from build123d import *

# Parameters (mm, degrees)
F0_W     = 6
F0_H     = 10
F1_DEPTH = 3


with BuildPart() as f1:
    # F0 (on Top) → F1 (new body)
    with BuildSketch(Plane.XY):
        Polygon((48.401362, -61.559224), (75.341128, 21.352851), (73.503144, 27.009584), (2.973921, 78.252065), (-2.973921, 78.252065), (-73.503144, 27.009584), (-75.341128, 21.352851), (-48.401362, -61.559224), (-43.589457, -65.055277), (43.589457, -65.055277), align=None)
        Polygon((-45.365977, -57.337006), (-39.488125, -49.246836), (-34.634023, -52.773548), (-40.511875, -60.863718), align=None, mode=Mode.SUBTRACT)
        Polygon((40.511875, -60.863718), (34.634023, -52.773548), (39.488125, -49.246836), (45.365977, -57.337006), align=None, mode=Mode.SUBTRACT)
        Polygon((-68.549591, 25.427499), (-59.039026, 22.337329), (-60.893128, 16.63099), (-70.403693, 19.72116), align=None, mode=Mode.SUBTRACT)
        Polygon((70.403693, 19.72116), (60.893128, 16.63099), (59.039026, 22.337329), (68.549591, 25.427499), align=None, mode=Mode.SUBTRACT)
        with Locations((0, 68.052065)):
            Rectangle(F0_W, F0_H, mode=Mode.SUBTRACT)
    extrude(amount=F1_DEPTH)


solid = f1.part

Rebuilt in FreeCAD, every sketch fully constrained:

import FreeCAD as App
import Part
import Sketcher
Q = App.Units.Quantity

doc = App.newDocument("Part")
body = doc.addObject("PartDesign::Body", "Body")

sketch1 = body.newObject("Sketcher::SketchObject", "Sketch")
sketch1.AttachmentSupport = (doc.getObject("XY_Plane"), [""])
sketch1.MapMode = "FlatFace"
sketch1.addGeometry(Part.LineSegment(App.Vector(48, -62, 0), App.Vector(75, 21, 0)), False)
sketch1.addGeometry(Part.LineSegment(App.Vector(75, 21, 0), App.Vector(74, 27, 0)), False)
sketch1.addGeometry(Part.LineSegment(App.Vector(74, 27, 0), App.Vector(3, 78, 0)), False)
sketch1.addGeometry(Part.LineSegment(App.Vector(3, 78, 0), App.Vector(-3, 78, 0)), False)
sketch1.addGeometry(Part.LineSegment(App.Vector(-3, 78, 0), App.Vector(-74, 27, 0)), False)
sketch1.addGeometry(Part.LineSegment(App.Vector(-74, 27, 0), App.Vector(-75, 21, 0)), False)
sketch1.addGeometry(Part.LineSegment(App.Vector(-75, 21, 0), App.Vector(-48, -62, 0)), False)
sketch1.addGeometry(Part.LineSegment(App.Vector(-48, -62, 0), App.Vector(-44, -65, 0)), False)
sketch1.addGeometry(Part.LineSegment(App.Vector(-44, -65, 0), App.Vector(44, -65, 0)), False)
sketch1.addGeometry(Part.LineSegment(App.Vector(44, -65, 0), App.Vector(48, -62, 0)), False)
sketch1.addGeometry(Part.LineSegment(App.Vector(-41, -61, 0), App.Vector(-45, -57, 0)), False)
sketch1.addGeometry(Part.LineSegment(App.Vector(-45, -57, 0), App.Vector(-39, -49, 0)), False)
sketch1.addGeometry(Part.LineSegment(App.Vector(-39, -49, 0), App.Vector(-35, -53, 0)), False)
sketch1.addGeometry(Part.LineSegment(App.Vector(-35, -53, 0), App.Vector(-41, -61, 0)), False)
sketch1.addGeometry(Part.LineSegment(App.Vector(45, -57, 0), App.Vector(41, -61, 0)), False)
sketch1.addGeometry(Part.LineSegment(App.Vector(41, -61, 0), App.Vector(35, -53, 0)), False)
sketch1.addGeometry(Part.LineSegment(App.Vector(35, -53, 0), App.Vector(39, -49, 0)), False)
sketch1.addGeometry(Part.LineSegment(App.Vector(39, -49, 0), App.Vector(45, -57, 0)), False)
sketch1.addGeometry(Part.LineSegment(App.Vector(-70, 20, 0), App.Vector(-69, 25, 0)), False)
sketch1.addGeometry(Part.LineSegment(App.Vector(-69, 25, 0), App.Vector(-59, 22, 0)), False)
sketch1.addGeometry(Part.LineSegment(App.Vector(-59, 22, 0), App.Vector(-61, 17, 0)), False)
sketch1.addGeometry(Part.LineSegment(App.Vector(-61, 17, 0), App.Vector(-70, 20, 0)), False)
sketch1.addGeometry(Part.LineSegment(App.Vector(3, 63, 0), App.Vector(-3, 63, 0)), False)
sketch1.addGeometry(Part.LineSegment(App.Vector(-3, 63, 0), App.Vector(-3, 73, 0)), False)
sketch1.addGeometry(Part.LineSegment(App.Vector(-3, 73, 0), App.Vector(3, 73, 0)), False)
sketch1.addGeometry(Part.LineSegment(App.Vector(3, 73, 0), App.Vector(3, 63, 0)), False)
sketch1.addGeometry(Part.LineSegment(App.Vector(69, 25, 0), App.Vector(70, 20, 0)), False)
sketch1.addGeometry(Part.LineSegment(App.Vector(70, 20, 0), App.Vector(61, 17, 0)), False)
sketch1.addGeometry(Part.LineSegment(App.Vector(61, 17, 0), App.Vector(59, 22, 0)), False)
sketch1.addGeometry(Part.LineSegment(App.Vector(59, 22, 0), App.Vector(69, 25, 0)), False)
sketch1.addConstraint(Sketcher.Constraint("Coincident", 0, 2, 1, 1))
sketch1.addConstraint(Sketcher.Constraint("Coincident", 1, 2, 2, 1))
sketch1.addConstraint(Sketcher.Constraint("Coincident", 2, 2, 3, 1))
sketch1.addConstraint(Sketcher.Constraint("Coincident", 3, 2, 4, 1))
sketch1.addConstraint(Sketcher.Constraint("Coincident", 4, 2, 5, 1))
sketch1.addConstraint(Sketcher.Constraint("Coincident", 5, 2, 6, 1))
sketch1.addConstraint(Sketcher.Constraint("Coincident", 6, 2, 7, 1))
sketch1.addConstraint(Sketcher.Constraint("Coincident", 7, 2, 8, 1))
sketch1.addConstraint(Sketcher.Constraint("Coincident", 8, 2, 9, 1))
sketch1.addConstraint(Sketcher.Constraint("Coincident", 9, 2, 0, 1))
sketch1.addConstraint(Sketcher.Constraint("Coincident", 10, 2, 11, 1))
sketch1.addConstraint(Sketcher.Constraint("Coincident", 11, 2, 12, 1))
sketch1.addConstraint(Sketcher.Constraint("Coincident", 12, 2, 13, 1))
sketch1.addConstraint(Sketcher.Constraint("Coincident", 13, 2, 10, 1))
sketch1.addConstraint(Sketcher.Constraint("Coincident", 14, 2, 15, 1))
sketch1.addConstraint(Sketcher.Constraint("Coincident", 15, 2, 16, 1))
sketch1.addConstraint(Sketcher.Constraint("Coincident", 16, 2, 17, 1))
sketch1.addConstraint(Sketcher.Constraint("Coincident", 17, 2, 14, 1))
sketch1.addConstraint(Sketcher.Constraint("Coincident", 18, 2, 19, 1))
sketch1.addConstraint(Sketcher.Constraint("Coincident", 19, 2, 20, 1))
sketch1.addConstraint(Sketcher.Constraint("Coincident", 20, 2, 21, 1))
sketch1.addConstraint(Sketcher.Constraint("Coincident", 21, 2, 18, 1))
sketch1.addConstraint(Sketcher.Constraint("Coincident", 22, 2, 23, 1))
sketch1.addConstraint(Sketcher.Constraint("Coincident", 23, 2, 24, 1))
sketch1.addConstraint(Sketcher.Constraint("Coincident", 24, 2, 25, 1))
sketch1.addConstraint(Sketcher.Constraint("Coincident", 25, 2, 22, 1))
sketch1.addConstraint(Sketcher.Constraint("Coincident", 26, 2, 27, 1))
sketch1.addConstraint(Sketcher.Constraint("Coincident", 27, 2, 28, 1))
sketch1.addConstraint(Sketcher.Constraint("Coincident", 28, 2, 29, 1))
sketch1.addConstraint(Sketcher.Constraint("Coincident", 29, 2, 26, 1))
sketch1.addConstraint(Sketcher.Constraint("Horizontal", 3))
sketch1.addConstraint(Sketcher.Constraint("Horizontal", 8))
sketch1.addConstraint(Sketcher.Constraint("Horizontal", 22))
sketch1.addConstraint(Sketcher.Constraint("Vertical", 23))
sketch1.addConstraint(Sketcher.Constraint("Horizontal", 24))
sketch1.addConstraint(Sketcher.Constraint("Vertical", 25))
sketch1.addConstraint(Sketcher.Constraint("Symmetric", 1, 2, 4, 2, -2))
sketch1.addConstraint(Sketcher.Constraint("Symmetric", 0, 2, 5, 2, -2))
sketch1.addConstraint(Sketcher.Constraint("Symmetric", 6, 2, 9, 2, -2))
sketch1.addConstraint(Sketcher.Constraint("Symmetric", 13, 2, 14, 2, -2))
sketch1.addConstraint(Sketcher.Constraint("Symmetric", 12, 2, 15, 2, -2))
sketch1.addConstraint(Sketcher.Constraint("Symmetric", 11, 2, 16, 2, -2))
sketch1.addConstraint(Sketcher.Constraint("Symmetric", 10, 2, 17, 2, -2))
sketch1.addConstraint(Sketcher.Constraint("Symmetric", 21, 2, 26, 2, -2))
sketch1.addConstraint(Sketcher.Constraint("Symmetric", 20, 2, 27, 2, -2))
sketch1.addConstraint(Sketcher.Constraint("Symmetric", 19, 2, 28, 2, -2))
sketch1.addConstraint(Sketcher.Constraint("Symmetric", 18, 2, 29, 2, -2))
sketch1.addConstraint(Sketcher.Constraint("Parallel", 0, 5))
sketch1.addConstraint(Sketcher.Constraint("Parallel", 2, 7))
sketch1.addConstraint(Sketcher.Constraint("Parallel", 4, 9))
sketch1.addConstraint(Sketcher.Constraint("Parallel", 7, 10))
sketch1.addConstraint(Sketcher.Constraint("Perpendicular", 10, 11))
sketch1.addConstraint(Sketcher.Constraint("Perpendicular", 11, 12))
sketch1.addConstraint(Sketcher.Constraint("Perpendicular", 12, 13))
sketch1.addConstraint(Sketcher.Constraint("Parallel", 9, 14))
sketch1.addConstraint(Sketcher.Constraint("Parallel", 5, 18))
sketch1.addConstraint(Sketcher.Constraint("Perpendicular", 18, 19))
sketch1.addConstraint(Sketcher.Constraint("Perpendicular", 19, 20))
sketch1.addConstraint(Sketcher.Constraint("Perpendicular", 20, 21))
sketch1.addConstraint(Sketcher.Constraint("Equal", 0, 2))
sketch1.addConstraint(Sketcher.Constraint("Equal", 5, 7))
sketch1.addConstraint(Sketcher.Constraint("Equal", 16, 18))
sketch1.addConstraint(Sketcher.Constraint("Equal", 17, 19))
sketch1.addConstraint(Sketcher.Constraint("DistanceX", 22, 2, 22, 1, Q("6 mm")))
sketch1.addConstraint(Sketcher.Constraint("DistanceY", 23, 1, 23, 2, Q("10 mm")))
sketch1.addConstraint(Sketcher.Constraint("Angle", 0, Q("72 deg")))
sketch1.addConstraint(Sketcher.Constraint("Angle", 2, Q("143.999999 deg")))
sketch1.addConstraint(Sketcher.Constraint("Distance", 10, Q("6 mm")))
sketch1.addConstraint(Sketcher.Constraint("Distance", 11, Q("10 mm")))
sketch1.addConstraint(Sketcher.Constraint("DistanceX", 22, 2, -1, 1, Q("3 mm")))
sketch1.addConstraint(Sketcher.Constraint("DistanceX", 11, 2, 14, 2, Q("80 mm")))
sketch1.addConstraint(Sketcher.Constraint("DistanceY", 22, 2, 3, 2, Q("15.2 mm")))
sketch1.addConstraint(Sketcher.Constraint("DistanceX", 5, 2, 20, 2, Q("14.448 mm")))
sketch1.addConstraint(Sketcher.Constraint("DistanceX", 3, 2, 3, 1, Q("5.947842 mm")))
sketch1.addConstraint(Sketcher.Constraint("DistanceY", -1, 1, 18, 2, Q("25.427499 mm")))
sketch1.addConstraint(Sketcher.Constraint("DistanceX", 7, 2, 1, 2, Q("117.092601 mm")))
sketch1.addConstraint(Sketcher.Constraint("DistanceX", 19, 2, 11, 2, Q("19.550901 mm")))
sketch1.addConstraint(Sketcher.Constraint("DistanceY", -1, 1, 0, 2, Q("21.352851 mm")))
sketch1.addConstraint(Sketcher.Constraint("DistanceY", 7, 2, 10, 2, Q("7.718271 mm")))
pad1 = body.newObject("PartDesign::Pad", "Pad")
pad1.Profile = sketch1
pad1.Length = 3

doc.recompute()
